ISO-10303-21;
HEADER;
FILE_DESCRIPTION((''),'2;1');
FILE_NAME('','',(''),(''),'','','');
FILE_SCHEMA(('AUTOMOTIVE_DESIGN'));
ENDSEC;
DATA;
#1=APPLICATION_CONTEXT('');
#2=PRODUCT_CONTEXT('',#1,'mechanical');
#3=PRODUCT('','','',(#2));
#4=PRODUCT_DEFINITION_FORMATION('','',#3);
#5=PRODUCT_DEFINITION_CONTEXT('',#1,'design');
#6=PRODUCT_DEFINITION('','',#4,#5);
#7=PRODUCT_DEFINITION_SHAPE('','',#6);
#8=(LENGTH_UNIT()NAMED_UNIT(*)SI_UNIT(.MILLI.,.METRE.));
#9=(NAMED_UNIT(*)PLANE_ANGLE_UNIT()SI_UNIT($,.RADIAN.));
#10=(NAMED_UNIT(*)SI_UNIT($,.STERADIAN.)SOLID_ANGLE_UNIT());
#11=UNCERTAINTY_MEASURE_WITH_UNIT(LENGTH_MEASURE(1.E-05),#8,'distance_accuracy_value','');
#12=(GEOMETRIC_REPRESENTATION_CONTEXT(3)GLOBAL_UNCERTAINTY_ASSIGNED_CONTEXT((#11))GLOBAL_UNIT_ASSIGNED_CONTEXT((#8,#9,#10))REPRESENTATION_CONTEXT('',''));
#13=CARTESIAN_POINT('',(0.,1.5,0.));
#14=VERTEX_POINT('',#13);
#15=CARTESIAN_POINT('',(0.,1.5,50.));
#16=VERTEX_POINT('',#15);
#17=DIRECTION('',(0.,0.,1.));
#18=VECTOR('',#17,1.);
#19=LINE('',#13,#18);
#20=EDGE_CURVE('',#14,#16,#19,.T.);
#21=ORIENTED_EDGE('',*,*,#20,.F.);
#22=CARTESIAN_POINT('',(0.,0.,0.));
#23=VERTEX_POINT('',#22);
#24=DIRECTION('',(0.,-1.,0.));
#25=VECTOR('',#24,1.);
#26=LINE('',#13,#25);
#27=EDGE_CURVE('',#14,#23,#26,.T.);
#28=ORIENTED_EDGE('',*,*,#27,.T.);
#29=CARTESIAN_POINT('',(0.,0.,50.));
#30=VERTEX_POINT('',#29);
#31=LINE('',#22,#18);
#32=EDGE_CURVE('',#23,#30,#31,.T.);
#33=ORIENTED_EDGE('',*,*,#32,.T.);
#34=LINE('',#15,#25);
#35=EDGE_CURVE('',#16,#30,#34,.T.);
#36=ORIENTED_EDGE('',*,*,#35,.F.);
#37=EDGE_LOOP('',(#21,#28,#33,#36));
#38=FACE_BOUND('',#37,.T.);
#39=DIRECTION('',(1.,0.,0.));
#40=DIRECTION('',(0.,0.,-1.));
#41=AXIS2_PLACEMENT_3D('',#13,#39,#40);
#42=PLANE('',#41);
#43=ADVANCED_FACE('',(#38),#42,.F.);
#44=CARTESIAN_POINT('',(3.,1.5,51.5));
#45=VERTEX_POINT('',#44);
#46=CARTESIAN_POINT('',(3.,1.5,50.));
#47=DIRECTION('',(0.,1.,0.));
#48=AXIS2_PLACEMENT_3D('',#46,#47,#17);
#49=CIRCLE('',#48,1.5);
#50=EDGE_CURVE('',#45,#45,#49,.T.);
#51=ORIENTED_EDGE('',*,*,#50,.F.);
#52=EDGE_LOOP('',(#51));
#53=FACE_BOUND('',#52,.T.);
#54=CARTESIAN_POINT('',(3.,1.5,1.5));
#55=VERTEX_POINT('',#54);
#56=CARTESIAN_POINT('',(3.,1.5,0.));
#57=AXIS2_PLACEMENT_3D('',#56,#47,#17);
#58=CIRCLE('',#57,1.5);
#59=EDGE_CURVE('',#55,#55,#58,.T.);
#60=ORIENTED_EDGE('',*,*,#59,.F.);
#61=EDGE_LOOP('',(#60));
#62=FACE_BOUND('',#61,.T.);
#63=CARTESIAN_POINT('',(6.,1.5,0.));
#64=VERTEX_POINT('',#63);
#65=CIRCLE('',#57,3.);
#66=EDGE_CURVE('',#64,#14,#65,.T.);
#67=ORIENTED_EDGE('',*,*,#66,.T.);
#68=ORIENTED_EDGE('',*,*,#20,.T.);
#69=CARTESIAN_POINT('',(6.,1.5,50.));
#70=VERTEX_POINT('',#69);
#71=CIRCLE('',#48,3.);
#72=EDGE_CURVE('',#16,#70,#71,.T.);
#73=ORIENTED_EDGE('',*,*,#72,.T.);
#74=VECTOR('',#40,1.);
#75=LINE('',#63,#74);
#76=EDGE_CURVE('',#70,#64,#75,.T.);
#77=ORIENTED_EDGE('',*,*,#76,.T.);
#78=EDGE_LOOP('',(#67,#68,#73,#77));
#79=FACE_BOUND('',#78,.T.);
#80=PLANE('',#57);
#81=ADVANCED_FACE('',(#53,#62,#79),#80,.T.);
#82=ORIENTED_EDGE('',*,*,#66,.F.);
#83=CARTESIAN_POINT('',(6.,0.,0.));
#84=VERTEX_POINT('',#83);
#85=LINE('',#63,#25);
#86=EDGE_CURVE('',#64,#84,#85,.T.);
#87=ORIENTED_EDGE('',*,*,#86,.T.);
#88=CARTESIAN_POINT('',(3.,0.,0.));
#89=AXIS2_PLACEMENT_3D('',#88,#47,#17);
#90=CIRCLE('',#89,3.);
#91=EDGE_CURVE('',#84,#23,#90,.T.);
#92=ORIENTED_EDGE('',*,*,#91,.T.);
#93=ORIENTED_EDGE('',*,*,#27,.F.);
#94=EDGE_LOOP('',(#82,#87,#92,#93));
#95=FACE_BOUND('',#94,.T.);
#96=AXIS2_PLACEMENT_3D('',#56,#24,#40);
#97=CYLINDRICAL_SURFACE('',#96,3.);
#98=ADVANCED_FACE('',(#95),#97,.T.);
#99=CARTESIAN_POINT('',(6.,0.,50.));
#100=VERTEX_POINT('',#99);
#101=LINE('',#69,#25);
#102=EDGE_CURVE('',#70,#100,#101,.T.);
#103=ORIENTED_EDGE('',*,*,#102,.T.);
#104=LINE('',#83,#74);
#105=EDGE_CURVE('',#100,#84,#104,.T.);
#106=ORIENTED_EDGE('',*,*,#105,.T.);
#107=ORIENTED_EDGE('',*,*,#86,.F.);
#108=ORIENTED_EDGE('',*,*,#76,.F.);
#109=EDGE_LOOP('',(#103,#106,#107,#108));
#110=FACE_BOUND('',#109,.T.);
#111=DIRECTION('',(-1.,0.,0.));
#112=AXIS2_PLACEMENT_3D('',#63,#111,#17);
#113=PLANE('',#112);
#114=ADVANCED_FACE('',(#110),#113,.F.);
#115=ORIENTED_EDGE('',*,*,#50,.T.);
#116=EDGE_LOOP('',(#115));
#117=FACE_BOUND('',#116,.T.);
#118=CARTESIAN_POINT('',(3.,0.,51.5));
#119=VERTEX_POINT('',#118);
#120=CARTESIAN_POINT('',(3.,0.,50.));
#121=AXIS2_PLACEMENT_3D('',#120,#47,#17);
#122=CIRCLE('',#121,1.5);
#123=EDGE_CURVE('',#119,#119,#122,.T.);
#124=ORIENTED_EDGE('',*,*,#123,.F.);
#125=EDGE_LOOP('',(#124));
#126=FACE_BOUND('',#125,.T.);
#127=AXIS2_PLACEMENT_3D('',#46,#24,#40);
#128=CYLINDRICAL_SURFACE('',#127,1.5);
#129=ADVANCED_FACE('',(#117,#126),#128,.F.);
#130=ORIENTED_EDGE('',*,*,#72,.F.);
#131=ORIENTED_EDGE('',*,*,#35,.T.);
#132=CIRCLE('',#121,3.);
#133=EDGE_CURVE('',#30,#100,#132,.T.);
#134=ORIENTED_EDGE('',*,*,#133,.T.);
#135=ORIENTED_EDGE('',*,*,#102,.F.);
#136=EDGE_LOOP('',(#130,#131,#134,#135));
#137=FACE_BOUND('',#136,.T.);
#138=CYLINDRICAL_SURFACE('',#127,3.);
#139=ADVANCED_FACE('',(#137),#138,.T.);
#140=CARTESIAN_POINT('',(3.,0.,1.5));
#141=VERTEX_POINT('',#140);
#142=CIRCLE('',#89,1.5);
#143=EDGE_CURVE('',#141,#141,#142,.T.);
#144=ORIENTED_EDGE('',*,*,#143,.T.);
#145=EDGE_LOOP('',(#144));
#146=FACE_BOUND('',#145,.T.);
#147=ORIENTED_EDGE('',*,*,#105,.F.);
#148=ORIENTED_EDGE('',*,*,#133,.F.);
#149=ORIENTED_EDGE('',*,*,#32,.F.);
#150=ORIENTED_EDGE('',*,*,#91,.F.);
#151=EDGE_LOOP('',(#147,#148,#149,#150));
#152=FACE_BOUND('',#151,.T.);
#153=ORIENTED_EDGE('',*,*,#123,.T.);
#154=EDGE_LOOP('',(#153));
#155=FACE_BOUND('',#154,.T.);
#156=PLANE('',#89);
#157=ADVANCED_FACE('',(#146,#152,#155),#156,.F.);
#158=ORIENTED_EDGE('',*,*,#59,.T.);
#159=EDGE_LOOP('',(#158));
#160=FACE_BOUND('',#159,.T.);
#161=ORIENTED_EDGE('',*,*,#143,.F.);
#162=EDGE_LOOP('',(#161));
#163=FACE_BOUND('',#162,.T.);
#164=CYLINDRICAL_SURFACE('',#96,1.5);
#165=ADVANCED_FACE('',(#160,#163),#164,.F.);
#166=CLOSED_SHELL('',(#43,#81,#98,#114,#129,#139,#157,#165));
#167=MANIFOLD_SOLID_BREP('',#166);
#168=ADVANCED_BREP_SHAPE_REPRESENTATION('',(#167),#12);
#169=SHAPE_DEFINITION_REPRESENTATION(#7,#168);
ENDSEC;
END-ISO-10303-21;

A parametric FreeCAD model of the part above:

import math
import FreeCAD as App
import Part
import Sketcher

V = App.Vector
Q = App.Units.Quantity

doc = App.newDocument("Part")
params = doc.addObject("Spreadsheet::Sheet", "Params")
for row, (alias, value) in enumerate([
    ("sketch1_diameter", "3 mm"),
    ("sketch1_radius", "3 mm"),
    ("sketch1_height", "50 mm"),
    ("pad1_length", "1.5 mm"),
], start=1):
    params.set(f"A{row}", alias)
    params.set(f"B{row}", "=" + value)
    params.setAlias(f"B{row}", alias)

body = doc.addObject("PartDesign::Body", "Body")

# Sketch on XZ plane
sketch1 = doc.addObject("Sketcher::SketchObject", "Sketch")
body.addObject(sketch1)
sketch1.AttachmentSupport = (doc.XZ_Plane, [""])
sketch1.MapMode = "FlatFace"
sketch1.addGeometry([
    Part.LineSegment(V(0, 0, 0), V(0, 50, 0)),  # 0
    Part.ArcOfCircle(Part.Circle(V(3, 50, 0), V(0, 0, 1), 3), math.radians(0), math.radians(180)),  # 1
    Part.LineSegment(V(6, 50, 0), V(6, 0, 0)),  # 2
    Part.ArcOfCircle(Part.Circle(V(3, 0, 0), V(0, 0, 1), 3), math.radians(180), math.radians(360)),  # 3
    Part.Circle(V(3, 50, 0), V(0, 0, 1), 1.5),  # 4
    Part.Circle(V(3, 0, 0), V(0, 0, 1), 1.5),  # 5
], False)
sketch1.addConstraint([
    Sketcher.Constraint("Tangent", 0, 2, 1, 2),
    Sketcher.Constraint("Tangent", 1, 1, 2, 1),
    Sketcher.Constraint("Tangent", 2, 2, 3, 2),
    Sketcher.Constraint("Tangent", 3, 1, 0, 1),
    Sketcher.Constraint("Vertical", 0),
    Sketcher.Constraint("Vertical", 2),
    Sketcher.Constraint("Coincident", 3, 1, -1, 1),
    Sketcher.Constraint("Coincident", 4, 3, 1, 3),
    Sketcher.Constraint("Coincident", 5, 3, 3, 3),
    Sketcher.Constraint("Equal", 4, 5),
    Sketcher.Constraint("Diameter", 4, Q("3 mm")),
    Sketcher.Constraint("Radius", 1, Q("3 mm")),
    Sketcher.Constraint("DistanceY", 0, 1, 0, 2, Q("50 mm")),
])
sketch1.setExpression("Constraints[10]", "Params.sketch1_diameter")
sketch1.setExpression("Constraints[11]", "Params.sketch1_radius")
sketch1.setExpression("Constraints[12]", "Params.sketch1_height")
pad1 = doc.addObject("PartDesign::Pad", "Pad")
body.addObject(pad1)
pad1.Profile = sketch1
pad1.setExpression("Length", "Params.pad1_length")
pad1.Reversed = True

doc.recompute()
